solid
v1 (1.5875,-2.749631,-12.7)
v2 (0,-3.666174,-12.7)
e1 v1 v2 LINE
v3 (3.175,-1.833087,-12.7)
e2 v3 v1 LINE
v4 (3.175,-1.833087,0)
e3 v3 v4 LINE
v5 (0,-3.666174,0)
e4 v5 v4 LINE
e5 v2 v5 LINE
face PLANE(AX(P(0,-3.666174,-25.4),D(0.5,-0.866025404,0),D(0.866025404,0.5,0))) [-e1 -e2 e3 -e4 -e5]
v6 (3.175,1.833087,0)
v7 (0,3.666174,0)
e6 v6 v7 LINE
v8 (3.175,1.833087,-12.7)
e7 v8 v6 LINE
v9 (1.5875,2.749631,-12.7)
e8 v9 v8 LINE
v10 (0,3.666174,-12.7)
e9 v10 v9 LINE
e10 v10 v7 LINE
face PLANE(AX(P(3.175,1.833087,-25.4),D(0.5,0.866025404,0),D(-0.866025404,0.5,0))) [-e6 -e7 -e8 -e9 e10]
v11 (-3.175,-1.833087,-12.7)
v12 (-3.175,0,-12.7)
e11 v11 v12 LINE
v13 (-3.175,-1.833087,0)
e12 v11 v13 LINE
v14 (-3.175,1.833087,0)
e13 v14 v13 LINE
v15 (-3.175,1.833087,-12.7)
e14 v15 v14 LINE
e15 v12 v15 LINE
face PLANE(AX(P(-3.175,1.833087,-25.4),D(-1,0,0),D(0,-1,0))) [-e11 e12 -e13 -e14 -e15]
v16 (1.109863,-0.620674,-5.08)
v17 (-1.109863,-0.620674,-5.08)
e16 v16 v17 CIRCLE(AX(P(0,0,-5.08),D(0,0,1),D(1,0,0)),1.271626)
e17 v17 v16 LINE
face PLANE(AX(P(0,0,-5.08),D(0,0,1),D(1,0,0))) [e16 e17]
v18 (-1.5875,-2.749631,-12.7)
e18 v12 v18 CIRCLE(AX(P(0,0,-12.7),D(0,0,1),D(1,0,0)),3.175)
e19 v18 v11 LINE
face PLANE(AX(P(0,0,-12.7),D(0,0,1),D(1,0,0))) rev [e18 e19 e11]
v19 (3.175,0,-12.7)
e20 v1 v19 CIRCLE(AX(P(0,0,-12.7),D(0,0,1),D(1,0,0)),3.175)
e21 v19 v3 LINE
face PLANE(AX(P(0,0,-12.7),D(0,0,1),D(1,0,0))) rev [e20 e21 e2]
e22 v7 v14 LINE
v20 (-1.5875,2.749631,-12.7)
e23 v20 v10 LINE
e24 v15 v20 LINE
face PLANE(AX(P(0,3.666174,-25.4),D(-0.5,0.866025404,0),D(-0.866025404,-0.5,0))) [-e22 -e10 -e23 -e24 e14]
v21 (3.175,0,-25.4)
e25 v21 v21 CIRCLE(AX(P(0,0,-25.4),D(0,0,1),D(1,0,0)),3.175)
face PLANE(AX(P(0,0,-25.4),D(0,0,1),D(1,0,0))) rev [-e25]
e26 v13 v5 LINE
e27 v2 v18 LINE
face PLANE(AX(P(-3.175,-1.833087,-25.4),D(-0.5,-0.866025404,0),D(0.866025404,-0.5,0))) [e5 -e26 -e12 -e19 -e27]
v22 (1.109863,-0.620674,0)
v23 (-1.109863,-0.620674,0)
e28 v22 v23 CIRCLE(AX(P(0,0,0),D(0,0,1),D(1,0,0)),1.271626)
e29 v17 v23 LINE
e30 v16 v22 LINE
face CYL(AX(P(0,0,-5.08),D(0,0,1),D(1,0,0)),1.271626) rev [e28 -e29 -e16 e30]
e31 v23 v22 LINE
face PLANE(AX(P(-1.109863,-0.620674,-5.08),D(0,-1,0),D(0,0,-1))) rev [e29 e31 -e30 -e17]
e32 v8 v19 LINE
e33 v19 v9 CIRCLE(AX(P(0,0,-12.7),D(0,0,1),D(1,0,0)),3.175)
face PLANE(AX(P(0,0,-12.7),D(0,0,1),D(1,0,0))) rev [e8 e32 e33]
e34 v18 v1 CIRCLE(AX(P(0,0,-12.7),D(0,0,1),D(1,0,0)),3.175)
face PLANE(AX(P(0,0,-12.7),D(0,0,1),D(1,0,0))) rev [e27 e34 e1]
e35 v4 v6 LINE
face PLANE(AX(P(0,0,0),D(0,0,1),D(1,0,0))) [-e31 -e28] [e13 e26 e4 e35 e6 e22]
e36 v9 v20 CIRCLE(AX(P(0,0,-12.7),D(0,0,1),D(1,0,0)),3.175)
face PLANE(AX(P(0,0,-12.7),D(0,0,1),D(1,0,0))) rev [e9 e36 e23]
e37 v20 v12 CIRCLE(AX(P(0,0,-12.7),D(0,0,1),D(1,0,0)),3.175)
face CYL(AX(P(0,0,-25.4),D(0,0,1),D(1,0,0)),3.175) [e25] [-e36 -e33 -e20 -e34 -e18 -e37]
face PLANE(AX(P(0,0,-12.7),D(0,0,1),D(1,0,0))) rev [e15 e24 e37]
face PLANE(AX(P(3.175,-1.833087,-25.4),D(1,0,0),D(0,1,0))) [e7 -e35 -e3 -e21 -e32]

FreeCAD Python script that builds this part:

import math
import FreeCAD as App
import Part
import Sketcher
Q = App.Units.Quantity

doc = App.newDocument("Part")
body = doc.addObject("PartDesign::Body", "Body")

# Sketch on XY plane
sketch1 = body.newObject("Sketcher::SketchObject", "Sketch")
sketch1.AttachmentSupport = (doc.getObject("XY_Plane"), [""])
sketch1.MapMode = "FlatFace"
sketch1.addGeometry([
    Part.LineSegment(App.Vector(0, 3.7, 0), App.Vector(-3.2, 1.8, 0)),  # 0
    Part.LineSegment(App.Vector(-3.2, 1.8, 0), App.Vector(-3.2, -1.8, 0)),  # 1
    Part.LineSegment(App.Vector(-3.2, -1.8, 0), App.Vector(0, -3.7, 0)),  # 2
    Part.LineSegment(App.Vector(0, -3.7, 0), App.Vector(3.2, -1.8, 0)),  # 3
    Part.LineSegment(App.Vector(3.2, -1.8, 0), App.Vector(3.2, 1.8, 0)),  # 4
    Part.LineSegment(App.Vector(3.2, 1.8, 0), App.Vector(0, 3.7, 0)),  # 5
], False)
sketch1.addConstraint([
    Sketcher.Constraint("Coincident", 0, 2, 1, 1),
    Sketcher.Constraint("Coincident", 1, 2, 2, 1),
    Sketcher.Constraint("Coincident", 2, 2, 3, 1),
    Sketcher.Constraint("Coincident", 3, 2, 4, 1),
    Sketcher.Constraint("Coincident", 4, 2, 5, 1),
    Sketcher.Constraint("Coincident", 5, 2, 0, 1),
    Sketcher.Constraint("Vertical", 1),
    Sketcher.Constraint("Vertical", 4),
    Sketcher.Constraint("Symmetric", 0, 2, 3, 2, -1, 1),
    Sketcher.Constraint("Symmetric", 2, 2, 5, 2, -1, 1),
    Sketcher.Constraint("PointOnObject", 2, 2, -2),
    Sketcher.Constraint("Parallel", 2, 5),
    Sketcher.Constraint("Horizontal", 1, 2, 3, 2),
    Sketcher.Constraint("Angle", 0, Q("-150 deg")),
    Sketcher.Constraint("DistanceX", 1, 2, 3, 2, Q("0.25 in")),
    Sketcher.Constraint("DistanceY", 1, 2, 1, 1, 3.666174),
])
pad1 = body.newObject("PartDesign::Pad", "Pad")
pad1.Profile = sketch1
pad1.Length = Q("1 in")
pad1.Reversed = True

# Sketch on XY plane
sketch2 = body.newObject("Sketcher::SketchObject", "Sketch001")
sketch2.AttachmentSupport = (doc.getObject("XY_Plane"), [""])
sketch2.MapMode = "FlatFace"
sketch2.addGeometry([
    Part.LineSegment(App.Vector(-1.1, -0.6, 0), App.Vector(1.1, -0.6, 0)),
    Part.ArcOfCircle(Part.Circle(App.Vector(0, 0, 0), App.Vector(0, 0, 1), 1.3), math.radians(-29), math.radians(209)),
], False)
sketch2.addConstraint([
    Sketcher.Constraint("Coincident", 0, 1, 1, 2),
    Sketcher.Constraint("Coincident", 1, 1, 0, 2),
    Sketcher.Constraint("Horizontal", 0),
    Sketcher.Constraint("Coincident", 1, 3, -1, 1),
    Sketcher.Constraint("Radius", 1, 1.271626),
    Sketcher.Constraint("DistanceX", 0, 1, 0, 2, 2.219725),
])
pocket1 = body.newObject("PartDesign::Pocket", "Pocket")
pocket1.Profile = sketch2
pocket1.Length = Q("0.2 in")

# Sketch on XY plane
sketch3 = body.newObject("Sketcher::SketchObject", "Sketch002")
sketch3.AttachmentSupport = (doc.getObject("XY_Plane"), [""])
sketch3.MapMode = "FlatFace"
sketch3.AttachmentOffset = App.Placement(App.Vector(0, 0, -0.5 * 25.4), App.Rotation())
sketch3.addGeometry([
    Part.LineSegment(App.Vector(-6.9, 7.4, 0), App.Vector(-6.9, -7.4, 0)),  # 0
    Part.LineSegment(App.Vector(-6.9, -7.4, 0), App.Vector(6.9, -7.4, 0)),  # 1
    Part.LineSegment(App.Vector(6.9, -7.4, 0), App.Vector(6.9, 7.4, 0)),  # 2
    Part.LineSegment(App.Vector(6.9, 7.4, 0), App.Vector(-6.9, 7.4, 0)),  # 3
    Part.Circle(App.Vector(0, 0, 0), App.Vector(0, 0, 1), 3.2),  # 4
], False)
sketch3.addConstraint([
    Sketcher.Constraint("Coincident", 0, 2, 1, 1),
    Sketcher.Constraint("Coincident", 1, 2, 2, 1),
    Sketcher.Constraint("Coincident", 2, 2, 3, 1),
    Sketcher.Constraint("Coincident", 3, 2, 0, 1),
    Sketcher.Constraint("Vertical", 0),
    Sketcher.Constraint("Horizontal", 1),
    Sketcher.Constraint("Vertical", 2),
    Sketcher.Constraint("Horizontal", 3),
    Sketcher.Constraint("Coincident", 4, 3, -1, 1),
    Sketcher.Constraint("Symmetric", 0, 2, 2, 2, -1, 1),
    Sketcher.Constraint("Diameter", 4, Q("0.25 in")),
    Sketcher.Constraint("DistanceX", 1, 1, 1, 2, 13.788),
    Sketcher.Constraint("DistanceY", 0, 2, 0, 1, 14.77),
])
pocket2 = body.newObject("PartDesign::Pocket", "Pocket001")
pocket2.Profile = sketch3
pocket2.Type = "ThroughAll"

doc.recompute()
